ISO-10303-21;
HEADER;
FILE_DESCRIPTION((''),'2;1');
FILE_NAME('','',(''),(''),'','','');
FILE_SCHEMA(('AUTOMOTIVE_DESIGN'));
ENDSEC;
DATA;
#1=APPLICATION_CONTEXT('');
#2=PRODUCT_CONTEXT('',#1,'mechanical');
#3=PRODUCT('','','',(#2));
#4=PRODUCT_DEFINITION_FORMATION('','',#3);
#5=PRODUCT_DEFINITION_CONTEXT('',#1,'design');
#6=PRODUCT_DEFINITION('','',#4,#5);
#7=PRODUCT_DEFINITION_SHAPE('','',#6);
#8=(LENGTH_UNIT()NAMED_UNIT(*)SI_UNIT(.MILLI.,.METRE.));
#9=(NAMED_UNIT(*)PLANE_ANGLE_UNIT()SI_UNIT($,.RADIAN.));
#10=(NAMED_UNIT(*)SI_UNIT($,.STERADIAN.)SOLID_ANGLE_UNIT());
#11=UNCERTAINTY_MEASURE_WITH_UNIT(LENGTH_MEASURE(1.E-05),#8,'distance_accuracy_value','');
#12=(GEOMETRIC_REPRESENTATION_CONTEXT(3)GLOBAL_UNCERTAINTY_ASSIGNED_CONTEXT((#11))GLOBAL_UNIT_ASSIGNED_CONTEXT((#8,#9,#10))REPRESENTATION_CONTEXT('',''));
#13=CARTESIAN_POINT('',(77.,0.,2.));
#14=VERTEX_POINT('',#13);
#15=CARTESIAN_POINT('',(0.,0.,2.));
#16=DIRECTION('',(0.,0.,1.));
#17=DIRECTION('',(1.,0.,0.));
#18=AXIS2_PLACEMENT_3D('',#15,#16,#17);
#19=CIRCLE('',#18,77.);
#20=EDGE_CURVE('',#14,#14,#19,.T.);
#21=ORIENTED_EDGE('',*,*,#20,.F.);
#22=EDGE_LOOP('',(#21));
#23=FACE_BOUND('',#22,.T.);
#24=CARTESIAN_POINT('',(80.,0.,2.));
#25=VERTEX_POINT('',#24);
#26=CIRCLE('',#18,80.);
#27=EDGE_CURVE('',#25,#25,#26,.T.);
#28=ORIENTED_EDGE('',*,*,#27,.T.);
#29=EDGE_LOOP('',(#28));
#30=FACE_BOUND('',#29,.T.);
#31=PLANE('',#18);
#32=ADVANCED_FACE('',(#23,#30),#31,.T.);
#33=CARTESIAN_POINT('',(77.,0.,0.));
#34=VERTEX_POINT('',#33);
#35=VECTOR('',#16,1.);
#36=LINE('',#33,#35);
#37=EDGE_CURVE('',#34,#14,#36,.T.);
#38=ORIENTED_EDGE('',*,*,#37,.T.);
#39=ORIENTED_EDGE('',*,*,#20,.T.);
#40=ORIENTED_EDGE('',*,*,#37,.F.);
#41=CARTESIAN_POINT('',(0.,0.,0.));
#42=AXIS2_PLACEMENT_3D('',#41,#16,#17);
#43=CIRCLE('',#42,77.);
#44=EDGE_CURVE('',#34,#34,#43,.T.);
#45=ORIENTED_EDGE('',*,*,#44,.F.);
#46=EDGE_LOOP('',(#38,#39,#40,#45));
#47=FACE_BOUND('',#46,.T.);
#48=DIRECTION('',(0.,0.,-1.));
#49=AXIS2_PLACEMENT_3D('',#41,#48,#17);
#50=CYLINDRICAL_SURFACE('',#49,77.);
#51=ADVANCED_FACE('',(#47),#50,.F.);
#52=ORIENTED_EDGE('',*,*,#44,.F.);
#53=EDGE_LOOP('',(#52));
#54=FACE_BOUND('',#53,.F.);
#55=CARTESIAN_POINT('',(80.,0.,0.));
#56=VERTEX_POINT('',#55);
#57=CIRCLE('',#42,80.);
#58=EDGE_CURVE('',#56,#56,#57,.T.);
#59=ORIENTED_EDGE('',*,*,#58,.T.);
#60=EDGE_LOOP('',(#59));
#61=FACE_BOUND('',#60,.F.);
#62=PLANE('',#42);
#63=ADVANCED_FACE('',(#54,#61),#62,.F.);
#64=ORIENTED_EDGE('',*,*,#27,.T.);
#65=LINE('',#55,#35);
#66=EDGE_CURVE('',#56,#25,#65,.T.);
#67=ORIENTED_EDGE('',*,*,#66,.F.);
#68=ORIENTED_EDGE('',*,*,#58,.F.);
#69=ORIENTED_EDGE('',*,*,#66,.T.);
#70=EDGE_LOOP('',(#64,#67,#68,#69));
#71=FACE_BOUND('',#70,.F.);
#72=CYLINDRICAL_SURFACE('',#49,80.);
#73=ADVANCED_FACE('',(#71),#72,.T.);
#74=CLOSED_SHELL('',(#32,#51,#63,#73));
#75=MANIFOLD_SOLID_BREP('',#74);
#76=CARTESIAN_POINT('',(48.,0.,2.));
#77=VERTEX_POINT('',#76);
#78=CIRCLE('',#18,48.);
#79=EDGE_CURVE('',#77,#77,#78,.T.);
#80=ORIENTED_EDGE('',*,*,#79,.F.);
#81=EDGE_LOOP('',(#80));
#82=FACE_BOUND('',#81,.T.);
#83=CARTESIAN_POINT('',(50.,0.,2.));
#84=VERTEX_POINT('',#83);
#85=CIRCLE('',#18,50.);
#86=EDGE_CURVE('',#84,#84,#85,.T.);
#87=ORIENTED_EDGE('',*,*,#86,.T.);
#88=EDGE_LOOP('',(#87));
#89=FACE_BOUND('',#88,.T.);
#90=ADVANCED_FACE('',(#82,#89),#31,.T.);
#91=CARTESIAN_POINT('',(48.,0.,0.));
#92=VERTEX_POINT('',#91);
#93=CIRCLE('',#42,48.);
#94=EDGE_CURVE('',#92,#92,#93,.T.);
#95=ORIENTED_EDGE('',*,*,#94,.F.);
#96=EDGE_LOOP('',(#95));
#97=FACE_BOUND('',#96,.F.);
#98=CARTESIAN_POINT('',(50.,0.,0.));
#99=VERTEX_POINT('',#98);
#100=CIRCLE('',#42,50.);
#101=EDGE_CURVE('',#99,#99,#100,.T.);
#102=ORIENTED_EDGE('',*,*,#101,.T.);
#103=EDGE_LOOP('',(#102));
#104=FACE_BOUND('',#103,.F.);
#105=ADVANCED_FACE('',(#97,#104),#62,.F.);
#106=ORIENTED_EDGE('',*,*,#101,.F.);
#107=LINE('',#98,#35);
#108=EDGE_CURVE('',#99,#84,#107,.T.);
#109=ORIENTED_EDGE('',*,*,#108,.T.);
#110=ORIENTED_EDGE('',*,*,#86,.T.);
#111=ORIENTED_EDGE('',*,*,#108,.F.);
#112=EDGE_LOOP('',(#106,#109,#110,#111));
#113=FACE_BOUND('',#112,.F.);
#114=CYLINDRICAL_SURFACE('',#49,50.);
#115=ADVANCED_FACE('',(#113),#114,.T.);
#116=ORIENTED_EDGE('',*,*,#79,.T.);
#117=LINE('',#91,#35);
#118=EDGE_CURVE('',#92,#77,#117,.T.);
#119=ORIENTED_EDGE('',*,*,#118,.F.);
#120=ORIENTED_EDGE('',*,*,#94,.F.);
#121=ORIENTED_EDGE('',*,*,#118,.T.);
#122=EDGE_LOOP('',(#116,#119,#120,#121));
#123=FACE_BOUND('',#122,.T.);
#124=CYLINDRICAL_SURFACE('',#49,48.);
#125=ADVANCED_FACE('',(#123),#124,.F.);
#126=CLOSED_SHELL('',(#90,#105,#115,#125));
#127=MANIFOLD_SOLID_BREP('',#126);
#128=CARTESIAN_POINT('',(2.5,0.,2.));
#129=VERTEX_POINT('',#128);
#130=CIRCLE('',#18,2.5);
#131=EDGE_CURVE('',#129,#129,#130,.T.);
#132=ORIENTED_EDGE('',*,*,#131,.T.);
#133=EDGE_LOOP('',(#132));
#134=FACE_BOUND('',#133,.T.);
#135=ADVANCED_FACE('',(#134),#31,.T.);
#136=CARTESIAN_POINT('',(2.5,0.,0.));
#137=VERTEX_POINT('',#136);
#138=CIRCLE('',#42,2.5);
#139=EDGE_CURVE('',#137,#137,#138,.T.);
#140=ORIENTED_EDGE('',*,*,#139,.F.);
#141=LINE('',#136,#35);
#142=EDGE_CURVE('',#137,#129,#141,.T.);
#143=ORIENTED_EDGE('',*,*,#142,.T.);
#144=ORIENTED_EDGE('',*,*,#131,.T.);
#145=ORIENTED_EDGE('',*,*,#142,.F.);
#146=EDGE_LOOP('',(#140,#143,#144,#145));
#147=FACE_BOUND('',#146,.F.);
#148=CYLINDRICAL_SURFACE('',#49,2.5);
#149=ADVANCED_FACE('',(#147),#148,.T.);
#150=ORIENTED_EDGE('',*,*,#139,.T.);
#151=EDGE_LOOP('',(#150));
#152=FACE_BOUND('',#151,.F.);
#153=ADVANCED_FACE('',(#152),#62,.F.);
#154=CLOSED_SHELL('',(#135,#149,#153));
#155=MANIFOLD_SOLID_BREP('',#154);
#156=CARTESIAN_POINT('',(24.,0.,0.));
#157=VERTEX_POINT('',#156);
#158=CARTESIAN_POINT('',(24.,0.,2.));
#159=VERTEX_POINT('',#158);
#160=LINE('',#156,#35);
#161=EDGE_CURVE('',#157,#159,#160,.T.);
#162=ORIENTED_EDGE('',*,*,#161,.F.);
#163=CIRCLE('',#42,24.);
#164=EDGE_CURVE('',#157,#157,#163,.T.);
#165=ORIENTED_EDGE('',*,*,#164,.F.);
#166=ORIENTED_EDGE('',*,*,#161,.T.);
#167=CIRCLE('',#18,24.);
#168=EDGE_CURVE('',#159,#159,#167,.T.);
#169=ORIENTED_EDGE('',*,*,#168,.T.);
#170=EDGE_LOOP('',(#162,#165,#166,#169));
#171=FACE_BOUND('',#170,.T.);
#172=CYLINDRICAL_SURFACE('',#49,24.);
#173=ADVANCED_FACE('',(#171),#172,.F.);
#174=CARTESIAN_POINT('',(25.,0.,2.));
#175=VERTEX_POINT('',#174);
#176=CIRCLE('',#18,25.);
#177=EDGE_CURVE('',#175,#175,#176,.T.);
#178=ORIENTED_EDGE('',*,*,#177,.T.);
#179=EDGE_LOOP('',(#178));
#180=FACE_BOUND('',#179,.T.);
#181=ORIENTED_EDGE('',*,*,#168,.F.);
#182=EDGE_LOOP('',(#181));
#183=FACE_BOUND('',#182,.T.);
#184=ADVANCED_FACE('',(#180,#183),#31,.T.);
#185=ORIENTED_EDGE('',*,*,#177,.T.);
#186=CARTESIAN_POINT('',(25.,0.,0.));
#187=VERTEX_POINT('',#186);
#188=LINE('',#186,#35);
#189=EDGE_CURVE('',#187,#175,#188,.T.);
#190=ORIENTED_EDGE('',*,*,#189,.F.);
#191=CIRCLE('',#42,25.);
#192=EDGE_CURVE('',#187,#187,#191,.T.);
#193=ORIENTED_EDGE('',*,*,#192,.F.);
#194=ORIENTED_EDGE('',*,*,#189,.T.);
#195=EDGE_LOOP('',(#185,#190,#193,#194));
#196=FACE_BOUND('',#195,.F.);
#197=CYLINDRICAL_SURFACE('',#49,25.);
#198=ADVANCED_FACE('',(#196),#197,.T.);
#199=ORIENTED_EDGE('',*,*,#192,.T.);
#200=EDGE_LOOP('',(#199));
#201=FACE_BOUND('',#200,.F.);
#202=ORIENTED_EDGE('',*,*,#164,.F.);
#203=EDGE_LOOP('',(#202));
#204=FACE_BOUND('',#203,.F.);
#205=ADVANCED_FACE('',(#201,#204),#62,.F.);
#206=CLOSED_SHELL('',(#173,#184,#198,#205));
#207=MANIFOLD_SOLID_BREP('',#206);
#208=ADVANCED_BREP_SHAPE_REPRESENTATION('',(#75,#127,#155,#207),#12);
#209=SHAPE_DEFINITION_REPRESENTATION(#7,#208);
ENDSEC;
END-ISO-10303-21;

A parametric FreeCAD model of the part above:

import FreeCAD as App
import Part
import Sketcher

V = App.Vector
Q = App.Units.Quantity

doc = App.newDocument("Part")
body = doc.addObject("PartDesign::Body", "Body")

# Sketch on XY plane
sketch1 = body.newObject("Sketcher::SketchObject", "Sketch")
sketch1.AttachmentSupport = (doc.getObject("XY_Plane"), [""])
sketch1.MapMode = "FlatFace"
sketch1.addGeometry(Part.Circle(V(0, 0, 0), V(0, 0, 1), 50), False)
sketch1.addGeometry(Part.Circle(V(0, 0, 0), V(0, 0, 1), 48), False)
sketch1.addConstraint(Sketcher.Constraint("Coincident", 0, 3, -1, 1))
sketch1.addConstraint(Sketcher.Constraint("Coincident", 1, 3, -1, 1))
sketch1.addConstraint(Sketcher.Constraint("Diameter", 0, Q("100 mm")))
sketch1.addConstraint(Sketcher.Constraint("Diameter", 1, Q("96 mm")))
pad1 = body.newObject("PartDesign::Pad", "Pad")
pad1.Profile = sketch1
pad1.Length = 2
body2 = doc.addObject("PartDesign::Body", "Body001")

# Sketch on XY plane
sketch2 = body2.newObject("Sketcher::SketchObject", "Sketch001")
sketch2.AttachmentSupport = (doc.getObject("XY_Plane001"), [""])
sketch2.MapMode = "FlatFace"
sketch2.addGeometry(Part.Circle(V(0, 0, 0), V(0, 0, 1), 80), False)
sketch2.addGeometry(Part.Circle(V(0, 0, 0), V(0, 0, 1), 77), False)
sketch2.addConstraint(Sketcher.Constraint("Coincident", 0, 3, -1, 1))
sketch2.addConstraint(Sketcher.Constraint("Coincident", 1, 3, -1, 1))
sketch2.addConstraint(Sketcher.Constraint("Diameter", 0, Q("160 mm")))
sketch2.addConstraint(Sketcher.Constraint("Diameter", 1, Q("154 mm")))
pad2 = body2.newObject("PartDesign::Pad", "Pad001")
pad2.Profile = sketch2
pad2.Length = 2
body3 = doc.addObject("PartDesign::Body", "Body002")

# Sketch on XY plane
sketch3 = body3.newObject("Sketcher::SketchObject", "Sketch002")
sketch3.AttachmentSupport = (doc.getObject("XY_Plane002"), [""])
sketch3.MapMode = "FlatFace"
sketch3.addGeometry(Part.Circle(V(0, 0, 0), V(0, 0, 1), 25), False)
sketch3.addGeometry(Part.Circle(V(0, 0, 0), V(0, 0, 1), 24), False)
sketch3.addConstraint(Sketcher.Constraint("Coincident", 0, 3, -1, 1))
sketch3.addConstraint(Sketcher.Constraint("Coincident", 1, 3, -1, 1))
sketch3.addConstraint(Sketcher.Constraint("Diameter", 0, Q("50 mm")))
sketch3.addConstraint(Sketcher.Constraint("Diameter", 1, Q("48 mm")))
pad3 = body3.newObject("PartDesign::Pad", "Pad002")
pad3.Profile = sketch3
pad3.Length = 2
body4 = doc.addObject("PartDesign::Body", "Body003")

# Sketch on XY plane
sketch4 = body4.newObject("Sketcher::SketchObject", "Sketch003")
sketch4.AttachmentSupport = (doc.getObject("XY_Plane003"), [""])
sketch4.MapMode = "FlatFace"
sketch4.addGeometry(Part.Circle(V(0, 0, 0), V(0, 0, 1), 2.5), False)
sketch4.addConstraint(Sketcher.Constraint("Coincident", 0, 3, -1, 1))
sketch4.addConstraint(Sketcher.Constraint("Diameter", 0, Q("5 mm")))
pad4 = body4.newObject("PartDesign::Pad", "Pad003")
pad4.Profile = sketch4
pad4.Length = 2

doc.recompute()
